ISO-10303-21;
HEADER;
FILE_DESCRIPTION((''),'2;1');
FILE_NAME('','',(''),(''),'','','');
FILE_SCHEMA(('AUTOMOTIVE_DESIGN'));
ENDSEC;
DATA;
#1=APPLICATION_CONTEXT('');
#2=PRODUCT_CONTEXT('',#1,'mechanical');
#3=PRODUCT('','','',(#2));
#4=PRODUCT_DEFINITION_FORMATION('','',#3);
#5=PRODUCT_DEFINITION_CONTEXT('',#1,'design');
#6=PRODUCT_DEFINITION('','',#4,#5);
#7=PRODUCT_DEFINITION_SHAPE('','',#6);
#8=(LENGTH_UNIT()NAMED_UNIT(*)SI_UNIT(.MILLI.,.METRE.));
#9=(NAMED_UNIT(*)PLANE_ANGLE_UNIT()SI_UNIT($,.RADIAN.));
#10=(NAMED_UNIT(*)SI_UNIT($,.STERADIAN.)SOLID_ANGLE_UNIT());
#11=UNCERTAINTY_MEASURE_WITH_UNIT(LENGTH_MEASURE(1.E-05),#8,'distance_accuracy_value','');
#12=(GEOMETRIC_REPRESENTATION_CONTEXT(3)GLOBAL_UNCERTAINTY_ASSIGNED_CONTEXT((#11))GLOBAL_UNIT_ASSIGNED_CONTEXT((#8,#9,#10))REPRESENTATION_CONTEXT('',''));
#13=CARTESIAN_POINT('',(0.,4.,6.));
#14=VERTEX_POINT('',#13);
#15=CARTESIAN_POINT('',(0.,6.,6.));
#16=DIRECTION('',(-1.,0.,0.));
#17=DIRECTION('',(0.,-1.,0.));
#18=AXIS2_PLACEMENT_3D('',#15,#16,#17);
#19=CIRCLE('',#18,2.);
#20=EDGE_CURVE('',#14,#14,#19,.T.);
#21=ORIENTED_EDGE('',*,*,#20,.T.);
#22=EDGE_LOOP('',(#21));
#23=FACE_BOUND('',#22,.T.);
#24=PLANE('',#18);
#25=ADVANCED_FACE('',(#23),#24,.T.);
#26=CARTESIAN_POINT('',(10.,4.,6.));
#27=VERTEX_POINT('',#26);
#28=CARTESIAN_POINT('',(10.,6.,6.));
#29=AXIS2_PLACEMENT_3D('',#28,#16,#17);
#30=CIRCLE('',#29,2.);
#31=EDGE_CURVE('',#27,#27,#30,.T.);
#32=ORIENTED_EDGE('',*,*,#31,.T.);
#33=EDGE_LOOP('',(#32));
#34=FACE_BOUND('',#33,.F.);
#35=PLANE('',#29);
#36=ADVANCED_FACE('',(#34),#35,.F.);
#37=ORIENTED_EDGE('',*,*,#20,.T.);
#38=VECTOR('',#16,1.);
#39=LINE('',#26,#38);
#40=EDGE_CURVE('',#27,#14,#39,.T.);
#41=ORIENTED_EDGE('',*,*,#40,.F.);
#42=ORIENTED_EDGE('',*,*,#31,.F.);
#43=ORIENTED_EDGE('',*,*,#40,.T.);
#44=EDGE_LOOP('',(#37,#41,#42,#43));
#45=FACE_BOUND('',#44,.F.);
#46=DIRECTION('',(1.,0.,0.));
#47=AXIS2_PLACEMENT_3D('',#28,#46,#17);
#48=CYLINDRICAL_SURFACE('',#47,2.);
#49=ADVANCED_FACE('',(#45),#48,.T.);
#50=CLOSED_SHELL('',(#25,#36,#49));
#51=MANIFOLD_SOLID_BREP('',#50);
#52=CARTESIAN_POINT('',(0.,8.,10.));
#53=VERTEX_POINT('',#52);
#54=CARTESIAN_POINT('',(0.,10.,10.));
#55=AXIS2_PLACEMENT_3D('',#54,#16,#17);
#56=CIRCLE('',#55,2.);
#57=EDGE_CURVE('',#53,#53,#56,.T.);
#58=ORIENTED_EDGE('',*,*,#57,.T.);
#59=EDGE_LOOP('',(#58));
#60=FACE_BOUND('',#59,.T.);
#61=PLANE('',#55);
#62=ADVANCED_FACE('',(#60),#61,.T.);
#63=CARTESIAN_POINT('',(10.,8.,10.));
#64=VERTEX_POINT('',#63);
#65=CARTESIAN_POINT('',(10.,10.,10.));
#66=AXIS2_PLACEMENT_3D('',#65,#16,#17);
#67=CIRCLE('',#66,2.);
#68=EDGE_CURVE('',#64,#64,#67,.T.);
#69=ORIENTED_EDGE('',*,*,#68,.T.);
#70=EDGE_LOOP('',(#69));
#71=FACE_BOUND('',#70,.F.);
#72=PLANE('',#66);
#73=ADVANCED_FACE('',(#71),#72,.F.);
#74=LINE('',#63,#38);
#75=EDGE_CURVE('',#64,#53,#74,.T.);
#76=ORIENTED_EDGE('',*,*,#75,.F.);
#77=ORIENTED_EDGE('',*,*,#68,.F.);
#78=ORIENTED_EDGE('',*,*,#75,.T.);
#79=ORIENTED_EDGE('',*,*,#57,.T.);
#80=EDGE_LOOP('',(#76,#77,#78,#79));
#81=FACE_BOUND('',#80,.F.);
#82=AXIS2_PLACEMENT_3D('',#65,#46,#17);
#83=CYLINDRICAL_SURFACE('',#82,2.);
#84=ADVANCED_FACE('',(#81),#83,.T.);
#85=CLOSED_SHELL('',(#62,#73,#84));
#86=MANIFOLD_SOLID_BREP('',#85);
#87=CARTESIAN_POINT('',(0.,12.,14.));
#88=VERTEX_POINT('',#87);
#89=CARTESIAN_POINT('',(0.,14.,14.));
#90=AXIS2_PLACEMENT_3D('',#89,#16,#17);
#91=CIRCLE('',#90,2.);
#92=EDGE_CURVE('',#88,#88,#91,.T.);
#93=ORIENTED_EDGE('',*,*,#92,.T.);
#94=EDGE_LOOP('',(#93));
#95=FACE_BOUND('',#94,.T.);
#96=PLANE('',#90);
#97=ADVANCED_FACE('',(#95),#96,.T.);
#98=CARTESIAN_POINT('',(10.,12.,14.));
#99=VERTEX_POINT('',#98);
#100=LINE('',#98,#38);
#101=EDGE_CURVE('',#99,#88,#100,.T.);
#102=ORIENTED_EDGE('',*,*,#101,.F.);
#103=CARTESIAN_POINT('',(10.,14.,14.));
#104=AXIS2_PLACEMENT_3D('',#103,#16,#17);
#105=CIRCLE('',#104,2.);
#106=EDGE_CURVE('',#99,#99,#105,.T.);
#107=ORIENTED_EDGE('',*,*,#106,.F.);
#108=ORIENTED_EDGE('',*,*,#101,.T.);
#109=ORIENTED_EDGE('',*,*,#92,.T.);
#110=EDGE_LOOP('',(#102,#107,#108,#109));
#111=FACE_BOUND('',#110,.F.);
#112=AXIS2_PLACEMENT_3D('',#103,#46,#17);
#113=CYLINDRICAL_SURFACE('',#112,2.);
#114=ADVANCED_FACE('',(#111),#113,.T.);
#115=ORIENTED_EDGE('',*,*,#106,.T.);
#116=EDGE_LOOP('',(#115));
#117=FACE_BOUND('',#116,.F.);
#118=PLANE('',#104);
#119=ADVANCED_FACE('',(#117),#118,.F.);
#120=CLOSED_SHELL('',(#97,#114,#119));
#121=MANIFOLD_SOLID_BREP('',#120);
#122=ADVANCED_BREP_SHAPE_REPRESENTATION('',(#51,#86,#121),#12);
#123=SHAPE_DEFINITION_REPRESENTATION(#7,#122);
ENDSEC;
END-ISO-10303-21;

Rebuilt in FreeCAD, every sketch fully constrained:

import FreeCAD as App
import Part
import Sketcher

V = App.Vector

doc = App.newDocument("Part")
params = doc.addObject("Spreadsheet::Sheet", "Params")
for row, (alias, value) in enumerate([
    ("sketch1_diameter", "4 mm"),
    ("pad1_length", "10 mm"),
    ("sketch2_diameter", "4 mm"),
    ("pad2_length", "10 mm"),
    ("sketch3_diameter", "4 mm"),
    ("pad3_length", "10 mm"),
], start=1):
    params.set(f"A{row}", alias)
    params.set(f"B{row}", "=" + value)
    params.setAlias(f"B{row}", alias)

body = doc.addObject("PartDesign::Body", "Body")

# Sketch on YZ plane
sketch1 = doc.addObject("Sketcher::SketchObject", "Sketch")
body.addObject(sketch1)
sketch1.AttachmentSupport = (doc.YZ_Plane, [""])
sketch1.MapMode = "FlatFace"
sketch1.AttachmentOffset = App.Placement(V(0, 0, 10), App.Rotation())
sketch1.addGeometry(Part.Circle(V(14, 14, 0), V(0, 0, 1), 2), False)
sketch1.addConstraint(Sketcher.Constraint("Diameter", 0, 4.0))
sketch1.addConstraint(Sketcher.Constraint("DistanceX", -1, 1, 0, 3, 14.0))
sketch1.addConstraint(Sketcher.Constraint("DistanceY", -1, 1, 0, 3, 14.0))
sketch1.setExpression("Constraints[0]", "Params.sketch1_diameter")
pad1 = doc.addObject("PartDesign::Pad", "Pad")
body.addObject(pad1)
pad1.Profile = sketch1
pad1.setExpression("Length", "Params.pad1_length")
pad1.Reversed = True
body2 = doc.addObject("PartDesign::Body", "Body001")
body2.AllowCompound = True

# Sketch on YZ plane
sketch2 = doc.addObject("Sketcher::SketchObject", "Sketch001")
body2.addObject(sketch2)
sketch2.AttachmentSupport = (doc.getObject("YZ_Plane001"), [""])
sketch2.MapMode = "FlatFace"
sketch2.AttachmentOffset = App.Placement(V(0, 0, 10), App.Rotation())
sketch2.addGeometry(Part.Circle(V(10, 10, 0), V(0, 0, 1), 2), False)
sketch2.addConstraint(Sketcher.Constraint("Diameter", 0, 4.0))
sketch2.addConstraint(Sketcher.Constraint("DistanceX", -1, 1, 0, 3, 10.0))
sketch2.addConstraint(Sketcher.Constraint("DistanceY", -1, 1, 0, 3, 10.0))
sketch2.setExpression("Constraints[0]", "Params.sketch2_diameter")
pad2 = doc.addObject("PartDesign::Pad", "Pad001")
body2.addObject(pad2)
pad2.Profile = sketch2
pad2.setExpression("Length", "Params.pad2_length")
pad2.Reversed = True
doc.recompute()

boolean = doc.addObject("PartDesign::Boolean", "Boolean")
body2.addObject(boolean)
boolean.Type = "Fuse"
boolean.addObjects([body])
body3 = doc.addObject("PartDesign::Body", "Body002")
body3.AllowCompound = True

# Sketch on YZ plane
sketch3 = doc.addObject("Sketcher::SketchObject", "Sketch002")
body3.addObject(sketch3)
sketch3.AttachmentSupport = (doc.getObject("YZ_Plane002"), [""])
sketch3.MapMode = "FlatFace"
sketch3.AttachmentOffset = App.Placement(V(0, 0, 10), App.Rotation())
sketch3.addGeometry(Part.Circle(V(6, 6, 0), V(0, 0, 1), 2), False)
sketch3.addConstraint(Sketcher.Constraint("Diameter", 0, 4.0))
sketch3.addConstraint(Sketcher.Constraint("DistanceX", -1, 1, 0, 3, 6.0))
sketch3.addConstraint(Sketcher.Constraint("DistanceY", -1, 1, 0, 3, 6.0))
sketch3.setExpression("Constraints[0]", "Params.sketch3_diameter")
pad3 = doc.addObject("PartDesign::Pad", "Pad002")
body3.addObject(pad3)
pad3.Profile = sketch3
pad3.setExpression("Length", "Params.pad3_length")
pad3.Reversed = True
doc.recompute()

boolean2 = doc.addObject("PartDesign::Boolean", "Boolean001")
body3.addObject(boolean2)
boolean2.Type = "Fuse"
boolean2.addObjects([body2])

doc.recompute()
